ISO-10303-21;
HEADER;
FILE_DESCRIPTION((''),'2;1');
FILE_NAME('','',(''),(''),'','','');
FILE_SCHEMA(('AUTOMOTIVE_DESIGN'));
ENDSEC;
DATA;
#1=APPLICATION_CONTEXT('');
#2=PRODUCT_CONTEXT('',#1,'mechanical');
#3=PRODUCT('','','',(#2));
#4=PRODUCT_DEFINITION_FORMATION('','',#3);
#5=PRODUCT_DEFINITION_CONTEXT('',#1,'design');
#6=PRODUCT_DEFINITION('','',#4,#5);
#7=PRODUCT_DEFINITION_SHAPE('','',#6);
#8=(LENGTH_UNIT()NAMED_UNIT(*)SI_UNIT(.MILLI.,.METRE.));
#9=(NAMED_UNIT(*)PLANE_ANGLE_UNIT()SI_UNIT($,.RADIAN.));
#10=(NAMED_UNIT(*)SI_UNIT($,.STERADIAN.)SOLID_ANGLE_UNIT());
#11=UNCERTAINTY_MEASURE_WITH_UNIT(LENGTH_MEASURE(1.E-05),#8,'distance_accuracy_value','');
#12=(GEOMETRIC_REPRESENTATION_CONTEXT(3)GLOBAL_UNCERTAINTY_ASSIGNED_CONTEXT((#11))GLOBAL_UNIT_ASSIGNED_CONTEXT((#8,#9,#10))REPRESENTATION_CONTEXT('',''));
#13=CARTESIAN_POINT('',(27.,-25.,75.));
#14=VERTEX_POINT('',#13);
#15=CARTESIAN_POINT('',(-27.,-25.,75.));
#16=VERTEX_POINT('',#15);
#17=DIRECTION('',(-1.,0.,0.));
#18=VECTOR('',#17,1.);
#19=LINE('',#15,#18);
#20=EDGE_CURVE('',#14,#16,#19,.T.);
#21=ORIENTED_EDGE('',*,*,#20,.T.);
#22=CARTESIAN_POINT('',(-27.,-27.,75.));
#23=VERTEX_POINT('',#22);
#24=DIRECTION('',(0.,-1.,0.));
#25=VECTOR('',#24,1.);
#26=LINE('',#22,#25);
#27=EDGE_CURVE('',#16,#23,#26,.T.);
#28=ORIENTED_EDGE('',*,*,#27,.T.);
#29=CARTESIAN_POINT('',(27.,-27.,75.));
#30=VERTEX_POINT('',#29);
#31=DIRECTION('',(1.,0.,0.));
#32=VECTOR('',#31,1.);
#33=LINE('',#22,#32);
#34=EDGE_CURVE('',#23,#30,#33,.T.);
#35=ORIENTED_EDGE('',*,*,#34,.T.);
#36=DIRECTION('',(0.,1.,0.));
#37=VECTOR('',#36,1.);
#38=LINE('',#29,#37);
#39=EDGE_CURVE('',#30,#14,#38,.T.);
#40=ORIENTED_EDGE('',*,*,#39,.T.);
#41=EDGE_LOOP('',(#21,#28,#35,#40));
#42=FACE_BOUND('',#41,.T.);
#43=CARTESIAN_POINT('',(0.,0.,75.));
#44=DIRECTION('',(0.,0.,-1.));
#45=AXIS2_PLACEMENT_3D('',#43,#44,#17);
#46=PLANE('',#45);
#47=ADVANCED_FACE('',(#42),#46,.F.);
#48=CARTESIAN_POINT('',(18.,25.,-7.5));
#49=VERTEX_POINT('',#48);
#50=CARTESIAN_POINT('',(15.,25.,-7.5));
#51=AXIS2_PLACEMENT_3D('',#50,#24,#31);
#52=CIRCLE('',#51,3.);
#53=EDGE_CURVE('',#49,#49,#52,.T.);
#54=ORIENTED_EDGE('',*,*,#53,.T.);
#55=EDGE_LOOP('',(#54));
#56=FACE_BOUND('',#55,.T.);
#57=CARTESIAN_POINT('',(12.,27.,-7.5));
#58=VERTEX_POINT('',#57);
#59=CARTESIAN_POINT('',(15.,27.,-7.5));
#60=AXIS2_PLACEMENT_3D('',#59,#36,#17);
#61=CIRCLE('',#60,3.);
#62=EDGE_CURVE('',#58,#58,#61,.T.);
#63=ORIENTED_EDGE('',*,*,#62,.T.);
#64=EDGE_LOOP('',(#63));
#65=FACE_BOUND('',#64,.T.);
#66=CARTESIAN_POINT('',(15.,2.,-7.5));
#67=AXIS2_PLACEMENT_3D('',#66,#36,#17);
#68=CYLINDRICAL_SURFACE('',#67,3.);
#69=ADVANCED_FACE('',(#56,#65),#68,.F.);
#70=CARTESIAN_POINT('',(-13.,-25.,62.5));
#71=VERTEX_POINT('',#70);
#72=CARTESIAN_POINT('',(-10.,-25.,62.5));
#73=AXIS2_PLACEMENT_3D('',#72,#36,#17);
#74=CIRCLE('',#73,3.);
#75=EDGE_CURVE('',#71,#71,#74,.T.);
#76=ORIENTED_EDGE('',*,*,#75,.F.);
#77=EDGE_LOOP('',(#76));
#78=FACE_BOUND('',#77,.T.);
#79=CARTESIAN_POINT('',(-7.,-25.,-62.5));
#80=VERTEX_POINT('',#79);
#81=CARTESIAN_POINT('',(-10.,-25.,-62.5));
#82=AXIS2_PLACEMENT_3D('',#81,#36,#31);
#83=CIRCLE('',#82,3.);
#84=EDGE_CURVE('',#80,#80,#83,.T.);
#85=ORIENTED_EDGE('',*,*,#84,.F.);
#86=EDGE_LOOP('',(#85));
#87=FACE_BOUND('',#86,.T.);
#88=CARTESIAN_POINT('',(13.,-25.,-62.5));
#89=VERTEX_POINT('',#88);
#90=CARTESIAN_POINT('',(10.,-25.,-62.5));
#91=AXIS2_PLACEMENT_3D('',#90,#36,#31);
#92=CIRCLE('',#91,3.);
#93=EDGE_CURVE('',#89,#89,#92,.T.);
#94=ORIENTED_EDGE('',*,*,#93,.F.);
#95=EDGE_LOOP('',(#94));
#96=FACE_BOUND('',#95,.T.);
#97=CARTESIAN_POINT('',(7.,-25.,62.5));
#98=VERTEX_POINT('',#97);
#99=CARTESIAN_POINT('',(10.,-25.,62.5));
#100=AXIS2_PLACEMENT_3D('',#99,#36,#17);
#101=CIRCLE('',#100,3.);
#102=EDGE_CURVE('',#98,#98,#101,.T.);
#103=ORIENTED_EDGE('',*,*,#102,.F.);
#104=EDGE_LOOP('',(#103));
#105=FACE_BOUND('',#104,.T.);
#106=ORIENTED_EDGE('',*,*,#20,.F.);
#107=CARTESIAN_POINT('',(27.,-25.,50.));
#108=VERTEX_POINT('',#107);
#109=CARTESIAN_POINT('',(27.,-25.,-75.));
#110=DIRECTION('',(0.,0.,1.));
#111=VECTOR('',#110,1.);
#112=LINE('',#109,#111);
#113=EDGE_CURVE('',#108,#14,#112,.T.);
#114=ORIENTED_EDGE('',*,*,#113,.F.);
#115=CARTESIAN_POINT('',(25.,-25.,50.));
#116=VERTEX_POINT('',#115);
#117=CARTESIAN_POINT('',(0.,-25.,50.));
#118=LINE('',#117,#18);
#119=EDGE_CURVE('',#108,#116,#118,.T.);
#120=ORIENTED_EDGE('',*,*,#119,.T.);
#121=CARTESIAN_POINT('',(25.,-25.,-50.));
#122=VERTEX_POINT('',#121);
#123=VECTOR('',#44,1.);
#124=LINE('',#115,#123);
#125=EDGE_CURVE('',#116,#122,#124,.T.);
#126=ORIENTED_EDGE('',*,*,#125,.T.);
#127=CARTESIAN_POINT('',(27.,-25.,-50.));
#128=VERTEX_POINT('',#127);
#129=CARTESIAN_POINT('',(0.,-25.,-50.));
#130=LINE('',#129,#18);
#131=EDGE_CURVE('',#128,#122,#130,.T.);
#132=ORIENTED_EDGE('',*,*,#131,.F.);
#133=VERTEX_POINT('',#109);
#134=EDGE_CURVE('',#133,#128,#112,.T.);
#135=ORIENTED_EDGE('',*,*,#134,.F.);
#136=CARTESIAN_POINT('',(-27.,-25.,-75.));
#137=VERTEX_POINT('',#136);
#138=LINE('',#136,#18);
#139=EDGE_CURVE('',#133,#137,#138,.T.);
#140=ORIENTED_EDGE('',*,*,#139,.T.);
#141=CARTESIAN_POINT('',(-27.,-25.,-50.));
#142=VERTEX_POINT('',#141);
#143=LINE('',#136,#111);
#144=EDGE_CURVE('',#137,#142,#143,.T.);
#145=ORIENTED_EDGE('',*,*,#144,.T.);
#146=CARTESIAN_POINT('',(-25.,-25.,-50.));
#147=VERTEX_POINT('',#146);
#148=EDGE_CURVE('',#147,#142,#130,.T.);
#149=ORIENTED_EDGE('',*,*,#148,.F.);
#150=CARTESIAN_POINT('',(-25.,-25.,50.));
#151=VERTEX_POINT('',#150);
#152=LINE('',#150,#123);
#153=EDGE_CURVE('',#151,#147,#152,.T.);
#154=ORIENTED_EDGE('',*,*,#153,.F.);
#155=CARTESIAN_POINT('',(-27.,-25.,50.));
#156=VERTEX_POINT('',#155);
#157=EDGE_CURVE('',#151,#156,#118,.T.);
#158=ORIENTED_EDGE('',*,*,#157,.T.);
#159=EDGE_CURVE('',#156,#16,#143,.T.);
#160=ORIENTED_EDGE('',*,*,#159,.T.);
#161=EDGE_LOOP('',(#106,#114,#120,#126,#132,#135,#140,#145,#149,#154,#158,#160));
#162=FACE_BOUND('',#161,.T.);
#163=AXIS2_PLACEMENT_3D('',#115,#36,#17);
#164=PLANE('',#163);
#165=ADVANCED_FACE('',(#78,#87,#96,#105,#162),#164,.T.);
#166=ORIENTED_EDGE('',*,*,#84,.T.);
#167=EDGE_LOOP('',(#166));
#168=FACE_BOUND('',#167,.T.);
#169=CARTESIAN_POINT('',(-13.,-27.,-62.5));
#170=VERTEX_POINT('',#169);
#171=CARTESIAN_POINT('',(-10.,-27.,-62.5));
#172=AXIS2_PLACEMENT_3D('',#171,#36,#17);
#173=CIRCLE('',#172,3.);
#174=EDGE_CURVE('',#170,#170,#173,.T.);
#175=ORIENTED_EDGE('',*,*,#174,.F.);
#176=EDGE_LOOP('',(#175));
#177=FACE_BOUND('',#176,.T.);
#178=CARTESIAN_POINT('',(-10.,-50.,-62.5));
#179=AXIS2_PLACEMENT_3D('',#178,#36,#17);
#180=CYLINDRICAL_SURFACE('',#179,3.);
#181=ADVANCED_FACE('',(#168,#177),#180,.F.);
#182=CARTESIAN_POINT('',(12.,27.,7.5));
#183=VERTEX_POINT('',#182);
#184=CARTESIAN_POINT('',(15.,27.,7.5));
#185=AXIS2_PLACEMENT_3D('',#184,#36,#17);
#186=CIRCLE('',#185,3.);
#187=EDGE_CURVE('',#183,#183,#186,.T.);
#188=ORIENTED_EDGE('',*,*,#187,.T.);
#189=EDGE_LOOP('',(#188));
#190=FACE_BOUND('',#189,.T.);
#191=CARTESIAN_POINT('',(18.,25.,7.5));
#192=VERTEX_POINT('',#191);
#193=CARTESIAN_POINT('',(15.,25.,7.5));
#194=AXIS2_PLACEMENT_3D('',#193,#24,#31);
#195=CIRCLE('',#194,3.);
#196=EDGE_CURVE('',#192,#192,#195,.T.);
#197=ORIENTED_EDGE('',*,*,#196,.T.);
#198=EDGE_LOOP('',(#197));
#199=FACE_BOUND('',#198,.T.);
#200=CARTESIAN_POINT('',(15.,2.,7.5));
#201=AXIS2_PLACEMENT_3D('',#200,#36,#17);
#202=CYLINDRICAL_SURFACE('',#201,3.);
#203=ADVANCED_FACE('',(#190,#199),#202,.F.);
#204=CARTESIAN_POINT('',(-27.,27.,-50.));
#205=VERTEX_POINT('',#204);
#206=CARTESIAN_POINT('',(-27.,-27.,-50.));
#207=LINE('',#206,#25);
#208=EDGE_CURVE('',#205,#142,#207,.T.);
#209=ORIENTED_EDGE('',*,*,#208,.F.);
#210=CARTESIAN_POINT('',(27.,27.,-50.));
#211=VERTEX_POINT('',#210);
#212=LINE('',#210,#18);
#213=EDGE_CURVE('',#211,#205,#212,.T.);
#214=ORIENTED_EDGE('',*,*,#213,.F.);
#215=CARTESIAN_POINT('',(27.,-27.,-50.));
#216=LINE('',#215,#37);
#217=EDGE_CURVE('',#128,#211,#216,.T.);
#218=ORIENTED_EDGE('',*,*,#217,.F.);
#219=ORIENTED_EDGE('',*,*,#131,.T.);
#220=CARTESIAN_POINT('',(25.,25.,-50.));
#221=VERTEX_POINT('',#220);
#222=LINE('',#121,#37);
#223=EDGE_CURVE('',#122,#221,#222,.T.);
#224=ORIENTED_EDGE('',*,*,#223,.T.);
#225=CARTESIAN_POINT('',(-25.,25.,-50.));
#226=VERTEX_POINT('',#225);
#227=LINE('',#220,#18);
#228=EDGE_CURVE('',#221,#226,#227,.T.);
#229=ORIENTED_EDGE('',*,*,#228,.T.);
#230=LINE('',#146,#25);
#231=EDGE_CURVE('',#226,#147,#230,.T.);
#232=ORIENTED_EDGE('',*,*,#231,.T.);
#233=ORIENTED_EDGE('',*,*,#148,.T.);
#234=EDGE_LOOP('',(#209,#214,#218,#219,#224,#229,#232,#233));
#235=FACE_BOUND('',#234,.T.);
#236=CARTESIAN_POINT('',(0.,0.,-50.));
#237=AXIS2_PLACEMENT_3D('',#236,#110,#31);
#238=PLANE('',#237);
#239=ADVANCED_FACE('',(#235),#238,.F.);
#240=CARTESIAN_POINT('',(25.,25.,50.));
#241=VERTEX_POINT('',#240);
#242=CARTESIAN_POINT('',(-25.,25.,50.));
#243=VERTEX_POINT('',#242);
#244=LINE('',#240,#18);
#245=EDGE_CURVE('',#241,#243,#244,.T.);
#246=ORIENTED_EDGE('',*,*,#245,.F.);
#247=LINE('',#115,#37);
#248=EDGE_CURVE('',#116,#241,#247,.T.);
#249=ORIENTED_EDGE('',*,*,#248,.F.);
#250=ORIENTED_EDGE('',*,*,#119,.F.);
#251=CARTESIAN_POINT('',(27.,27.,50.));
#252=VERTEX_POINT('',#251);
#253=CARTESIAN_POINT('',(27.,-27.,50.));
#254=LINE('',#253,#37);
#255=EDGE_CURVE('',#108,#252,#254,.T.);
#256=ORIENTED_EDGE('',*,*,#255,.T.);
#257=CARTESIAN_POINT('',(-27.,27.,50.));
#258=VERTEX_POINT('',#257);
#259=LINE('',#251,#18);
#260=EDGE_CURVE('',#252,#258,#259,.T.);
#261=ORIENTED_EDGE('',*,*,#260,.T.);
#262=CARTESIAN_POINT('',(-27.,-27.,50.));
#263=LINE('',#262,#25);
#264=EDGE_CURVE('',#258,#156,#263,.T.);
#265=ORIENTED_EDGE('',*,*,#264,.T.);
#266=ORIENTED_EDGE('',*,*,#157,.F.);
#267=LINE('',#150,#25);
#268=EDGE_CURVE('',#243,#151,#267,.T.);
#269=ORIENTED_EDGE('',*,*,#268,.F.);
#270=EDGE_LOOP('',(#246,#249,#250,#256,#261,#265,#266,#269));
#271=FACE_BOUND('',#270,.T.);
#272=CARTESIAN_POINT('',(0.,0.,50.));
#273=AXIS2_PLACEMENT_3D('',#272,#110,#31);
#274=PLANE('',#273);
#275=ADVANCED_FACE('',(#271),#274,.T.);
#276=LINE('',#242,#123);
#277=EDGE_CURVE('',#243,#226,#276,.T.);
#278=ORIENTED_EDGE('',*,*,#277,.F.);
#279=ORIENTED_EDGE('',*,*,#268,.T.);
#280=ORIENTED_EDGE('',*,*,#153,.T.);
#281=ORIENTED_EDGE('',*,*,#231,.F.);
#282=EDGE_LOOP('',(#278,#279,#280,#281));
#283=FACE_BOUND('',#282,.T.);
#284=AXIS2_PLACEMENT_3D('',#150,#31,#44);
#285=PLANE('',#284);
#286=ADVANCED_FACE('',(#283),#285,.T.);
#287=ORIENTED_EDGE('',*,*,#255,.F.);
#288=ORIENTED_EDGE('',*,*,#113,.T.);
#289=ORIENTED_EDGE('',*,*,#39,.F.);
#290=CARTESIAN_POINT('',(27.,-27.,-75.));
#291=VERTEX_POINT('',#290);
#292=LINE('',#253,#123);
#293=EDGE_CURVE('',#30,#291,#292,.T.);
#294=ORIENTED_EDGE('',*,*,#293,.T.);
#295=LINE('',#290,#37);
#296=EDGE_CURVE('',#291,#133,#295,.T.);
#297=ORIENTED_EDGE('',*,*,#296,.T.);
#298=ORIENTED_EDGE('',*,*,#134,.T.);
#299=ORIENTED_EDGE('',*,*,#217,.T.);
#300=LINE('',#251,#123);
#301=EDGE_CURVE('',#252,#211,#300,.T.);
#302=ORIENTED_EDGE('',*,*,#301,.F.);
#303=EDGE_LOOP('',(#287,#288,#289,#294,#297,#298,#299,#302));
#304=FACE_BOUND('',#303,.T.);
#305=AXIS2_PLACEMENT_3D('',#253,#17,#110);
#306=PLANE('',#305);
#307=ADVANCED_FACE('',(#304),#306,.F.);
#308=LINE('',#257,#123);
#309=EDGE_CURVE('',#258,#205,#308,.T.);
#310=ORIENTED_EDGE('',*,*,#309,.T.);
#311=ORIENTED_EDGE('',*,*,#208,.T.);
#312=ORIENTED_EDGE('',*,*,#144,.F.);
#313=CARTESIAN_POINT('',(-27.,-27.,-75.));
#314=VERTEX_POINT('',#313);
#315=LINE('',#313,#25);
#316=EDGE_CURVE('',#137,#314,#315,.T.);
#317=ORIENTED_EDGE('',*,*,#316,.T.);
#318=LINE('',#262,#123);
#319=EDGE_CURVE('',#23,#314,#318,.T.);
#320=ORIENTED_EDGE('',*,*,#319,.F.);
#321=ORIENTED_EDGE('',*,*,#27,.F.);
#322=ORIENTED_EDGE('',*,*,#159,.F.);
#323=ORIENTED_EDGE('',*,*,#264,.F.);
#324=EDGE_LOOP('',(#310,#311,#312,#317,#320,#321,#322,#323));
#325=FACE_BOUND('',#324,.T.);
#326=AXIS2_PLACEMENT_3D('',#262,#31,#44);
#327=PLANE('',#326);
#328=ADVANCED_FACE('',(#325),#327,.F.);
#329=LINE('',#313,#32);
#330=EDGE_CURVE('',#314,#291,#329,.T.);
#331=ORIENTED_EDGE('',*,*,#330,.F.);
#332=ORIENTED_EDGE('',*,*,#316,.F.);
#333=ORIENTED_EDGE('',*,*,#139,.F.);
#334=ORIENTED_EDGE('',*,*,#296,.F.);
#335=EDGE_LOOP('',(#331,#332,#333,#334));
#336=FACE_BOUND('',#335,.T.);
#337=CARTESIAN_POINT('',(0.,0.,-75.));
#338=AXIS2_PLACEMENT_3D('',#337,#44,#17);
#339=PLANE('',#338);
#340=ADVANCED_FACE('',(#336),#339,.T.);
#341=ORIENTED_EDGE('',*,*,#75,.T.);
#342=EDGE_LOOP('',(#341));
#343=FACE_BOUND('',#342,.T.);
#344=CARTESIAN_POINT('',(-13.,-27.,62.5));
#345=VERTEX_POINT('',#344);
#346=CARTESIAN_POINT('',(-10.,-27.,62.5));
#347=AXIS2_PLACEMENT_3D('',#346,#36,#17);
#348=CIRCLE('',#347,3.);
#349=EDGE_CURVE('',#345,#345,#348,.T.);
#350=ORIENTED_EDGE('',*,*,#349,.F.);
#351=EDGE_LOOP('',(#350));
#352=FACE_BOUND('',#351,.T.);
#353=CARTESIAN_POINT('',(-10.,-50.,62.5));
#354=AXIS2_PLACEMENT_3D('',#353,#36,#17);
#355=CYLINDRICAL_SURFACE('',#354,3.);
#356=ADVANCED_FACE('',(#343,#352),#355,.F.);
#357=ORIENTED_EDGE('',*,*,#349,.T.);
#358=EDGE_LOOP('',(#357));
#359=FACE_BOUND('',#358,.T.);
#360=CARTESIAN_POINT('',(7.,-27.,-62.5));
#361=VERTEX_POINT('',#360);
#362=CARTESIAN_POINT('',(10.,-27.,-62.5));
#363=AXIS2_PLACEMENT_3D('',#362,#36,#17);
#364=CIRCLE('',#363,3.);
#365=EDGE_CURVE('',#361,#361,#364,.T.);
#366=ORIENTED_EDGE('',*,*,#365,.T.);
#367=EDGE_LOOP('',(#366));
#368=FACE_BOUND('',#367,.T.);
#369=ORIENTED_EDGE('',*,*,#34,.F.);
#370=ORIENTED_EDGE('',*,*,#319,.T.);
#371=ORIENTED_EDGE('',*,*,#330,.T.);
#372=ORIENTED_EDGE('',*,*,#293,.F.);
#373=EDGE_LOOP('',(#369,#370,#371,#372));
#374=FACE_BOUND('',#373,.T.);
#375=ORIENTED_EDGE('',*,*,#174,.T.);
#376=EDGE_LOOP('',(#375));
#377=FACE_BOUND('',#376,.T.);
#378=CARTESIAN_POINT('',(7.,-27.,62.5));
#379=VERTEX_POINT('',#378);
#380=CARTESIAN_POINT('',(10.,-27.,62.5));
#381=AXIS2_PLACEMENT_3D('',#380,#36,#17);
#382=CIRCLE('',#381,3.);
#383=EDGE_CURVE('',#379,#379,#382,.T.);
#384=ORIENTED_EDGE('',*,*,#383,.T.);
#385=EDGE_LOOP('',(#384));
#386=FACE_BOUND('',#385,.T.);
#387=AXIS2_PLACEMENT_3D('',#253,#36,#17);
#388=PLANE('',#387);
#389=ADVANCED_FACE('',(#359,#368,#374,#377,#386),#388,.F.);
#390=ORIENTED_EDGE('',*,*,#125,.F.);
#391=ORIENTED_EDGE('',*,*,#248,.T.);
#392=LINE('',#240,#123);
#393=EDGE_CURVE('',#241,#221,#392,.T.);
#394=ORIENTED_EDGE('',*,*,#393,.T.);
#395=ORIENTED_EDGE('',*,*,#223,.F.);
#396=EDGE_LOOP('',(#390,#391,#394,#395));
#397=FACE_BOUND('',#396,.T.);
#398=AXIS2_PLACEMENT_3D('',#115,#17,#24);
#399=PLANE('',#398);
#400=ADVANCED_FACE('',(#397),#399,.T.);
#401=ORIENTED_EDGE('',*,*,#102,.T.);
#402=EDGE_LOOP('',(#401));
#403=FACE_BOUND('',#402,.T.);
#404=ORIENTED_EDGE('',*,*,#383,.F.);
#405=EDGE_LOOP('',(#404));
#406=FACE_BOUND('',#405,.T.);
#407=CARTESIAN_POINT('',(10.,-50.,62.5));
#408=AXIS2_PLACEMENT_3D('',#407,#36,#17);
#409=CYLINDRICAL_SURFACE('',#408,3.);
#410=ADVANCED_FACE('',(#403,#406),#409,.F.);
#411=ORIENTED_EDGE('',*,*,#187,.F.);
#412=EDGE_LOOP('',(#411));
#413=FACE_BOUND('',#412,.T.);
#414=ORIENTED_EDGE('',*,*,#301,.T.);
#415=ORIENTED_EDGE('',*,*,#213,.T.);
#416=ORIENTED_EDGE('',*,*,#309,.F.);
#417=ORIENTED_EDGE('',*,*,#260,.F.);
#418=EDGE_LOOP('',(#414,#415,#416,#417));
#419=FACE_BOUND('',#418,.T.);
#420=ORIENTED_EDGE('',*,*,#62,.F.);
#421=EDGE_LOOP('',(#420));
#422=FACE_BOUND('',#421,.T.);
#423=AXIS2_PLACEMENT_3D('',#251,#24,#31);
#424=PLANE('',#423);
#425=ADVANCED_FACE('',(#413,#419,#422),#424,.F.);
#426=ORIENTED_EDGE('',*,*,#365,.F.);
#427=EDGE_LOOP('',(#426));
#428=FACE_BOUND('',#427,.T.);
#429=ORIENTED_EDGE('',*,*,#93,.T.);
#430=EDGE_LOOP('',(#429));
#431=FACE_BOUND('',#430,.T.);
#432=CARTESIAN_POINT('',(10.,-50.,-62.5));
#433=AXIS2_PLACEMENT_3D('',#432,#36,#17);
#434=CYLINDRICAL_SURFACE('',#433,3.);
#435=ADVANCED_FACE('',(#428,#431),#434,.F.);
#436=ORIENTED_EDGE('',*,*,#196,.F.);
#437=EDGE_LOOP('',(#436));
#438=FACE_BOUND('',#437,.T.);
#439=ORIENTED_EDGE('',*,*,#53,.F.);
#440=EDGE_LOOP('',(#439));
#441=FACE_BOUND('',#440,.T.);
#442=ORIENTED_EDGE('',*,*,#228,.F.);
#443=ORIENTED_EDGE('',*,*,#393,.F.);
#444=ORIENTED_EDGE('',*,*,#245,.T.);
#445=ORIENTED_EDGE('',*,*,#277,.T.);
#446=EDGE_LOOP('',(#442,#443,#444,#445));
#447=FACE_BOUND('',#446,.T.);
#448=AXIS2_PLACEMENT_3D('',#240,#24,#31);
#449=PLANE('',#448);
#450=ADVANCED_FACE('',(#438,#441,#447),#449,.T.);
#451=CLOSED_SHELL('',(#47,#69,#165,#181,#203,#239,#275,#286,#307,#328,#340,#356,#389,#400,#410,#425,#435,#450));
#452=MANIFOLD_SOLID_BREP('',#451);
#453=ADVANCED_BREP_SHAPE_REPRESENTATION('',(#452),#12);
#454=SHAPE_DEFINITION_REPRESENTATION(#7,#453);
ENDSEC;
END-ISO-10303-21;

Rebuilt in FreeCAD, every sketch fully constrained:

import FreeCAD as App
import Part
import Sketcher


def add_polygon(sketch, points):
    """Adds a closed chain of lines whose ends are joined by coincident constraints."""
    first, n = sketch.GeometryCount, len(points)
    for a, b in zip(points, points[1:] + points[:1]):
        sketch.addGeometry(Part.LineSegment(App.Vector(*a, 0), App.Vector(*b, 0)), False)
    for i in range(n):
        sketch.addConstraint(Sketcher.Constraint("Coincident", first + i, 2, first + (i + 1) % n, 1))

doc = App.newDocument("Part")
body = doc.addObject("PartDesign::Body", "Body")

sketch1 = body.newObject("Sketcher::SketchObject", "Sketch")
sketch1.AttachmentSupport = (doc.getObject("XY_Plane"), [""])
sketch1.MapMode = "FlatFace"
add_polygon(sketch1, [(-27, 27), (-27, -27), (27, -27), (27, 27)])
add_polygon(sketch1, [(25, -25), (-25, -25), (-25, 25), (25, 25)])
sketch1.addConstraint(Sketcher.Constraint("Vertical", 0))
sketch1.addConstraint(Sketcher.Constraint("Horizontal", 1))
sketch1.addConstraint(Sketcher.Constraint("Vertical", 2))
sketch1.addConstraint(Sketcher.Constraint("Horizontal", 3))
sketch1.addConstraint(Sketcher.Constraint("Horizontal", 4))
sketch1.addConstraint(Sketcher.Constraint("Vertical", 5))
sketch1.addConstraint(Sketcher.Constraint("Horizontal", 6))
sketch1.addConstraint(Sketcher.Constraint("Vertical", 7))
sketch1.addConstraint(Sketcher.Constraint("Symmetric", 0, 2, 2, 2, -1, 1))
sketch1.addConstraint(Sketcher.Constraint("Symmetric", 4, 2, 6, 2, -1, 1))
sketch1.addConstraint(Sketcher.Constraint("Equal", 3, 0))
sketch1.addConstraint(Sketcher.Constraint("Equal", 6, 5))
sketch1.addConstraint(Sketcher.Constraint("DistanceX", 1, 1, 1, 2, 54.0))
sketch1.addConstraint(Sketcher.Constraint("DistanceX", 4, 2, 4, 1, 50.0))
pad1 = body.newObject("PartDesign::Pad", "Pad")
pad1.Profile = sketch1
pad1.Length = 100
pad1.Midplane = True

sketch2 = body.newObject("Sketcher::SketchObject", "Sketch001")
sketch2.AttachmentSupport = (doc.getObject("XY_Plane"), [""])
sketch2.MapMode = "FlatFace"
sketch2.AttachmentOffset = App.Placement(App.Vector(0, 0, 50), App.Rotation())
add_polygon(sketch2, [(-27, -25), (-27, -27), (27, -27), (27, -25)])
sketch2.addConstraint(Sketcher.Constraint("Vertical", 0))
sketch2.addConstraint(Sketcher.Constraint("Horizontal", 1))
sketch2.addConstraint(Sketcher.Constraint("Vertical", 2))
sketch2.addConstraint(Sketcher.Constraint("Horizontal", 3))
sketch2.addConstraint(Sketcher.Constraint("DistanceX", 1, 1, 1, 2, 54.0))
sketch2.addConstraint(Sketcher.Constraint("DistanceY", 0, 2, 0, 1, 2.0))
sketch2.addConstraint(Sketcher.Constraint("DistanceX", 0, 2, -1, 1, 27.0))
sketch2.addConstraint(Sketcher.Constraint("DistanceY", 0, 2, -1, 1, 27.0))
pad2 = body.newObject("PartDesign::Pad", "Pad001")
pad2.Profile = sketch2
pad2.Type = "TwoLengths"
pad2.Length = 25
pad2.Length2 = 125

sketch3 = body.newObject("Sketcher::SketchObject", "Sketch002")
sketch3.AttachmentSupport = (doc.getObject("XZ_Plane"), [""])
sketch3.MapMode = "FlatFace"
sketch3.AttachmentOffset = App.Placement(App.Vector(0, 0, 25), App.Rotation())
sketch3.addGeometry(Part.Circle(App.Vector(-10, 62.5, 0), App.Vector(0, 0, 1), 3), False)
sketch3.addGeometry(Part.Circle(App.Vector(10, 62.5, 0), App.Vector(0, 0, 1), 3), False)
sketch3.addGeometry(Part.Circle(App.Vector(10, -62.5, 0), App.Vector(0, 0, 1), 3), False)
sketch3.addGeometry(Part.Circle(App.Vector(-10, -62.5, 0), App.Vector(0, 0, 1), 3), False)
sketch3.addConstraint(Sketcher.Constraint("Equal", 0, 1))
sketch3.addConstraint(Sketcher.Constraint("Equal", 1, 2))
sketch3.addConstraint(Sketcher.Constraint("Equal", 2, 3))
sketch3.addConstraint(Sketcher.Constraint("Symmetric", 0, 3, 2, 3, -1, 1))
sketch3.addConstraint(Sketcher.Constraint("Symmetric", 1, 3, 3, 3, -1, 1))
sketch3.addConstraint(Sketcher.Constraint("Symmetric", 0, 3, 1, 3, -2))
sketch3.addConstraint(Sketcher.Constraint("Diameter", 0, 6.0))
sketch3.addConstraint(Sketcher.Constraint("DistanceX", 0, 3, -1, 1, 10.0))
sketch3.addConstraint(Sketcher.Constraint("DistanceY", 2, 3, 1, 3, 125.0))
pocket1 = body.newObject("PartDesign::Pocket", "Pocket")
pocket1.Profile = sketch3
pocket1.Length = 25
pocket1.Reversed = True

sketch4 = body.newObject("Sketcher::SketchObject", "Sketch003")
sketch4.AttachmentSupport = (doc.getObject("XZ_Plane"), [""])
sketch4.MapMode = "FlatFace"
sketch4.AttachmentOffset = App.Placement(App.Vector(0, 0, -27), App.Rotation())
sketch4.addGeometry(Part.Circle(App.Vector(15, -7.5, 0), App.Vector(0, 0, 1), 3), False)
sketch4.addGeometry(Part.Circle(App.Vector(15, 7.5, 0), App.Vector(0, 0, 1), 3), False)
sketch4.addConstraint(Sketcher.Constraint("Equal", 0, 1))
sketch4.addConstraint(Sketcher.Constraint("Symmetric", 0, 3, 1, 3, -1))
sketch4.addConstraint(Sketcher.Constraint("Diameter", 0, 6.0))
sketch4.addConstraint(Sketcher.Constraint("DistanceX", -1, 1, 0, 3, 15.0))
sketch4.addConstraint(Sketcher.Constraint("DistanceY", 0, 3, 1, 3, 15.0))
pocket2 = body.newObject("PartDesign::Pocket", "Pocket001")
pocket2.Profile = sketch4
pocket2.Length = 25
pocket2.Reversed = True

doc.recompute()
